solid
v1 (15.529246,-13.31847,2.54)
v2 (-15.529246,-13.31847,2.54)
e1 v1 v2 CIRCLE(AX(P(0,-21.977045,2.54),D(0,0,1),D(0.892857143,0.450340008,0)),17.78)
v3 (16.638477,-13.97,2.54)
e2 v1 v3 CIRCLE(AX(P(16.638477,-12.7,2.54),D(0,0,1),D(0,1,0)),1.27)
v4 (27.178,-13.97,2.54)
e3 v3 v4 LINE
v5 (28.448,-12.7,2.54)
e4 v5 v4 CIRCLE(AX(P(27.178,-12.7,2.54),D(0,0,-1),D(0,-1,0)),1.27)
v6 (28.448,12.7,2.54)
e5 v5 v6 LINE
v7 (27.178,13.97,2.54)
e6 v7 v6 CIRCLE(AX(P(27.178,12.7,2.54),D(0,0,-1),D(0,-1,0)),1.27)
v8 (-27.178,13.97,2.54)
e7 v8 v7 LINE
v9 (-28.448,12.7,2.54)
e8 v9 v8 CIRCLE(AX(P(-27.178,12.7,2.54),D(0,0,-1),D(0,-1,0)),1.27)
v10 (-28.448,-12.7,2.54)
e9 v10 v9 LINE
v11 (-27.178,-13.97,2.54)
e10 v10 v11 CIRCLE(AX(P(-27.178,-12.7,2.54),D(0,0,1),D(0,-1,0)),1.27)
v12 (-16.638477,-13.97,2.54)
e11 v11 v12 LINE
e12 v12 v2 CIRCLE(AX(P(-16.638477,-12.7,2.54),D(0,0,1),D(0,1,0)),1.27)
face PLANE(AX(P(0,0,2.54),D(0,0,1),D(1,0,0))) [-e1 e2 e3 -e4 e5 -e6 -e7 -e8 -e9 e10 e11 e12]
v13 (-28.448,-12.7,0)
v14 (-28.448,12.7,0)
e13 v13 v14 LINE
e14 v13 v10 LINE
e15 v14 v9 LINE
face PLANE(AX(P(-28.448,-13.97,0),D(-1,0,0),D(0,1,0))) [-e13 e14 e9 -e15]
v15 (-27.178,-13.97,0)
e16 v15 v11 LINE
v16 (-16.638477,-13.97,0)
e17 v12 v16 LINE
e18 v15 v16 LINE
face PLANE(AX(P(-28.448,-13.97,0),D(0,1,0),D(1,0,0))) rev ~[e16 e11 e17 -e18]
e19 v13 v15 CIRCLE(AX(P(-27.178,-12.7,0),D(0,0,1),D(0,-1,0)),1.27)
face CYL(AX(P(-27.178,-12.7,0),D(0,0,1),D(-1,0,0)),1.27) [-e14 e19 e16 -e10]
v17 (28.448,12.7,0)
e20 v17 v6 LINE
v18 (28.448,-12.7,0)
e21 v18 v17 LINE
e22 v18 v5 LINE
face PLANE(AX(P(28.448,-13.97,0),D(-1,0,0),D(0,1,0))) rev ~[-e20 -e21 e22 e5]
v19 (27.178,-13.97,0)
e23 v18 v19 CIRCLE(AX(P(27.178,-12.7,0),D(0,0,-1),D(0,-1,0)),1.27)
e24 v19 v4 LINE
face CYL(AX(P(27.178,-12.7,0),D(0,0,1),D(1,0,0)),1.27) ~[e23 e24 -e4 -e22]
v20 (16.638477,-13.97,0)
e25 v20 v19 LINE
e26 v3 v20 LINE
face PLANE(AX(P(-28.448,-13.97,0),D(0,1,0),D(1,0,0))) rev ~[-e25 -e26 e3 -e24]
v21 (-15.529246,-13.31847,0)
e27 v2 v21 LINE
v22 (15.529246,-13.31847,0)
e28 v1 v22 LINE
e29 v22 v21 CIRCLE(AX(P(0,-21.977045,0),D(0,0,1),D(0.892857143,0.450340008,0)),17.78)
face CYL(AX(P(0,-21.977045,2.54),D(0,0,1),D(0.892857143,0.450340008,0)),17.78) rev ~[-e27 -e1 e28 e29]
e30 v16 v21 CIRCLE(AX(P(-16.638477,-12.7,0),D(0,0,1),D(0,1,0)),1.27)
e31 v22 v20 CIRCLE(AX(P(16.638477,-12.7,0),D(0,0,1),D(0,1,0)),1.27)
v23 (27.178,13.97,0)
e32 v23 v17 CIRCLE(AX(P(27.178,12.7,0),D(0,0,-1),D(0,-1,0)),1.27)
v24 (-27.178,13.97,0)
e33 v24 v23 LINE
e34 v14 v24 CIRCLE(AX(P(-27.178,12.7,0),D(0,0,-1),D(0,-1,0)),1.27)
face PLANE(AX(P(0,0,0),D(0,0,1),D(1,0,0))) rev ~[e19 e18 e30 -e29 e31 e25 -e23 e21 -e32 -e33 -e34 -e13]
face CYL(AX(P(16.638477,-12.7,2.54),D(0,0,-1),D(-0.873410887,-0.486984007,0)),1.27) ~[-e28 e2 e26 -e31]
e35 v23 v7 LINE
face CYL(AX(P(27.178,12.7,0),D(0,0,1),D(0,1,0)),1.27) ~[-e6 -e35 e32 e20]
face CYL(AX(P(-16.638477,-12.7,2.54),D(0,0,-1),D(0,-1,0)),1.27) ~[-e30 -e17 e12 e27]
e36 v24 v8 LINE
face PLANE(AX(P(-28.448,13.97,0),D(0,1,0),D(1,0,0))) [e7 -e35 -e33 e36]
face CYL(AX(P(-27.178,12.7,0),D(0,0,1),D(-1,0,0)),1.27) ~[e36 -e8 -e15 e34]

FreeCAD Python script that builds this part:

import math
import FreeCAD as App
import Part
import Sketcher
Q = App.Units.Quantity


def edges_at(feature, points):
    """Names of the edges that pass closest to the given points."""
    edges = feature.Shape.Edges
    near = lambda p: min(range(len(edges)), key=lambda i: edges[i].distToShape(Part.Vertex(*p))[0])
    return sorted({f"Edge{near(p) + 1}" for p in points})

doc = App.newDocument("Part")
body = doc.addObject("PartDesign::Body", "Body")

sketch1 = body.newObject("Sketcher::SketchObject", "Sketch")
sketch1.AttachmentSupport = (doc.getObject("XY_Plane"), [""])
sketch1.MapMode = "FlatFace"
sketch1.addGeometry([
    Part.LineSegment(App.Vector(-28, 14, 0), App.Vector(-28, -14, 0)),
    Part.LineSegment(App.Vector(-28, -14, 0), App.Vector(28, -14, 0)),
    Part.LineSegment(App.Vector(28, -14, 0), App.Vector(28, 14, 0)),
    Part.LineSegment(App.Vector(28, 14, 0), App.Vector(-28, 14, 0)),
], False)
sketch1.addConstraint([
    Sketcher.Constraint("Coincident", 0, 2, 1, 1),
    Sketcher.Constraint("Coincident", 1, 2, 2, 1),
    Sketcher.Constraint("Coincident", 2, 2, 3, 1),
    Sketcher.Constraint("Coincident", 3, 2, 0, 1),
    Sketcher.Constraint("Vertical", 0),
    Sketcher.Constraint("Horizontal", 1),
    Sketcher.Constraint("Vertical", 2),
    Sketcher.Constraint("Horizontal", 3),
    Sketcher.Constraint("Symmetric", 0, 2, 2, 2, -1, 1),
    Sketcher.Constraint("DistanceY", 0, 2, 0, 1, Q("1.1 in")),
    Sketcher.Constraint("DistanceX", 1, 1, 1, 2, Q("2.24 in")),
])
pad1 = body.newObject("PartDesign::Pad", "Pad")
pad1.Profile = sketch1
pad1.Length = Q("0.1 in")

sketch2 = body.newObject("Sketcher::SketchObject", "Sketch001")
sketch2.AttachmentSupport = (doc.getObject("XY_Plane"), [""])
sketch2.MapMode = "FlatFace"
sketch2.AttachmentOffset = App.Placement(App.Vector(0, 0, 0.1 * 25.4), App.Rotation())
sketch2.addGeometry([
    Part.LineSegment(App.Vector(-16, -14, 0), App.Vector(16, -14, 0)),
    Part.ArcOfCircle(Part.Circle(App.Vector(0, -22, 0), App.Vector(0, 0, 1), 18), math.radians(27), math.radians(153)),
], False)
sketch2.addConstraint([
    Sketcher.Constraint("Coincident", 0, 1, 1, 2),
    Sketcher.Constraint("Coincident", 1, 1, 0, 2),
    Sketcher.Constraint("Horizontal", 0),
    Sketcher.Constraint("PointOnObject", 1, 3, -2),
    Sketcher.Constraint("Radius", 1, Q("0.7 in")),
    Sketcher.Constraint("DistanceX", 0, 1, 0, 2, Q("1.25 in")),
    Sketcher.Constraint("DistanceY", 0, 1, -1, 1, Q("0.55 in")),
])
pocket1 = body.newObject("PartDesign::Pocket", "Pocket")
pocket1.Profile = sketch2
pocket1.Type = "ThroughAll"
doc.recompute()

fillet = body.newObject("PartDesign::Fillet", "Fillet")
fillet.Base = (pocket1, edges_at(pocket1, [
    (-15.875, -13.97, 1.27),
    (15.875, -13.97, 1.27),
    (28.448, -13.97, 1.27),
    (-28.448, -13.97, 1.27),
    (-28.448, 13.97, 1.27),
    (28.448, 13.97, 1.27),
]))
fillet.Radius = Q("0.05 in")

doc.recompute()
